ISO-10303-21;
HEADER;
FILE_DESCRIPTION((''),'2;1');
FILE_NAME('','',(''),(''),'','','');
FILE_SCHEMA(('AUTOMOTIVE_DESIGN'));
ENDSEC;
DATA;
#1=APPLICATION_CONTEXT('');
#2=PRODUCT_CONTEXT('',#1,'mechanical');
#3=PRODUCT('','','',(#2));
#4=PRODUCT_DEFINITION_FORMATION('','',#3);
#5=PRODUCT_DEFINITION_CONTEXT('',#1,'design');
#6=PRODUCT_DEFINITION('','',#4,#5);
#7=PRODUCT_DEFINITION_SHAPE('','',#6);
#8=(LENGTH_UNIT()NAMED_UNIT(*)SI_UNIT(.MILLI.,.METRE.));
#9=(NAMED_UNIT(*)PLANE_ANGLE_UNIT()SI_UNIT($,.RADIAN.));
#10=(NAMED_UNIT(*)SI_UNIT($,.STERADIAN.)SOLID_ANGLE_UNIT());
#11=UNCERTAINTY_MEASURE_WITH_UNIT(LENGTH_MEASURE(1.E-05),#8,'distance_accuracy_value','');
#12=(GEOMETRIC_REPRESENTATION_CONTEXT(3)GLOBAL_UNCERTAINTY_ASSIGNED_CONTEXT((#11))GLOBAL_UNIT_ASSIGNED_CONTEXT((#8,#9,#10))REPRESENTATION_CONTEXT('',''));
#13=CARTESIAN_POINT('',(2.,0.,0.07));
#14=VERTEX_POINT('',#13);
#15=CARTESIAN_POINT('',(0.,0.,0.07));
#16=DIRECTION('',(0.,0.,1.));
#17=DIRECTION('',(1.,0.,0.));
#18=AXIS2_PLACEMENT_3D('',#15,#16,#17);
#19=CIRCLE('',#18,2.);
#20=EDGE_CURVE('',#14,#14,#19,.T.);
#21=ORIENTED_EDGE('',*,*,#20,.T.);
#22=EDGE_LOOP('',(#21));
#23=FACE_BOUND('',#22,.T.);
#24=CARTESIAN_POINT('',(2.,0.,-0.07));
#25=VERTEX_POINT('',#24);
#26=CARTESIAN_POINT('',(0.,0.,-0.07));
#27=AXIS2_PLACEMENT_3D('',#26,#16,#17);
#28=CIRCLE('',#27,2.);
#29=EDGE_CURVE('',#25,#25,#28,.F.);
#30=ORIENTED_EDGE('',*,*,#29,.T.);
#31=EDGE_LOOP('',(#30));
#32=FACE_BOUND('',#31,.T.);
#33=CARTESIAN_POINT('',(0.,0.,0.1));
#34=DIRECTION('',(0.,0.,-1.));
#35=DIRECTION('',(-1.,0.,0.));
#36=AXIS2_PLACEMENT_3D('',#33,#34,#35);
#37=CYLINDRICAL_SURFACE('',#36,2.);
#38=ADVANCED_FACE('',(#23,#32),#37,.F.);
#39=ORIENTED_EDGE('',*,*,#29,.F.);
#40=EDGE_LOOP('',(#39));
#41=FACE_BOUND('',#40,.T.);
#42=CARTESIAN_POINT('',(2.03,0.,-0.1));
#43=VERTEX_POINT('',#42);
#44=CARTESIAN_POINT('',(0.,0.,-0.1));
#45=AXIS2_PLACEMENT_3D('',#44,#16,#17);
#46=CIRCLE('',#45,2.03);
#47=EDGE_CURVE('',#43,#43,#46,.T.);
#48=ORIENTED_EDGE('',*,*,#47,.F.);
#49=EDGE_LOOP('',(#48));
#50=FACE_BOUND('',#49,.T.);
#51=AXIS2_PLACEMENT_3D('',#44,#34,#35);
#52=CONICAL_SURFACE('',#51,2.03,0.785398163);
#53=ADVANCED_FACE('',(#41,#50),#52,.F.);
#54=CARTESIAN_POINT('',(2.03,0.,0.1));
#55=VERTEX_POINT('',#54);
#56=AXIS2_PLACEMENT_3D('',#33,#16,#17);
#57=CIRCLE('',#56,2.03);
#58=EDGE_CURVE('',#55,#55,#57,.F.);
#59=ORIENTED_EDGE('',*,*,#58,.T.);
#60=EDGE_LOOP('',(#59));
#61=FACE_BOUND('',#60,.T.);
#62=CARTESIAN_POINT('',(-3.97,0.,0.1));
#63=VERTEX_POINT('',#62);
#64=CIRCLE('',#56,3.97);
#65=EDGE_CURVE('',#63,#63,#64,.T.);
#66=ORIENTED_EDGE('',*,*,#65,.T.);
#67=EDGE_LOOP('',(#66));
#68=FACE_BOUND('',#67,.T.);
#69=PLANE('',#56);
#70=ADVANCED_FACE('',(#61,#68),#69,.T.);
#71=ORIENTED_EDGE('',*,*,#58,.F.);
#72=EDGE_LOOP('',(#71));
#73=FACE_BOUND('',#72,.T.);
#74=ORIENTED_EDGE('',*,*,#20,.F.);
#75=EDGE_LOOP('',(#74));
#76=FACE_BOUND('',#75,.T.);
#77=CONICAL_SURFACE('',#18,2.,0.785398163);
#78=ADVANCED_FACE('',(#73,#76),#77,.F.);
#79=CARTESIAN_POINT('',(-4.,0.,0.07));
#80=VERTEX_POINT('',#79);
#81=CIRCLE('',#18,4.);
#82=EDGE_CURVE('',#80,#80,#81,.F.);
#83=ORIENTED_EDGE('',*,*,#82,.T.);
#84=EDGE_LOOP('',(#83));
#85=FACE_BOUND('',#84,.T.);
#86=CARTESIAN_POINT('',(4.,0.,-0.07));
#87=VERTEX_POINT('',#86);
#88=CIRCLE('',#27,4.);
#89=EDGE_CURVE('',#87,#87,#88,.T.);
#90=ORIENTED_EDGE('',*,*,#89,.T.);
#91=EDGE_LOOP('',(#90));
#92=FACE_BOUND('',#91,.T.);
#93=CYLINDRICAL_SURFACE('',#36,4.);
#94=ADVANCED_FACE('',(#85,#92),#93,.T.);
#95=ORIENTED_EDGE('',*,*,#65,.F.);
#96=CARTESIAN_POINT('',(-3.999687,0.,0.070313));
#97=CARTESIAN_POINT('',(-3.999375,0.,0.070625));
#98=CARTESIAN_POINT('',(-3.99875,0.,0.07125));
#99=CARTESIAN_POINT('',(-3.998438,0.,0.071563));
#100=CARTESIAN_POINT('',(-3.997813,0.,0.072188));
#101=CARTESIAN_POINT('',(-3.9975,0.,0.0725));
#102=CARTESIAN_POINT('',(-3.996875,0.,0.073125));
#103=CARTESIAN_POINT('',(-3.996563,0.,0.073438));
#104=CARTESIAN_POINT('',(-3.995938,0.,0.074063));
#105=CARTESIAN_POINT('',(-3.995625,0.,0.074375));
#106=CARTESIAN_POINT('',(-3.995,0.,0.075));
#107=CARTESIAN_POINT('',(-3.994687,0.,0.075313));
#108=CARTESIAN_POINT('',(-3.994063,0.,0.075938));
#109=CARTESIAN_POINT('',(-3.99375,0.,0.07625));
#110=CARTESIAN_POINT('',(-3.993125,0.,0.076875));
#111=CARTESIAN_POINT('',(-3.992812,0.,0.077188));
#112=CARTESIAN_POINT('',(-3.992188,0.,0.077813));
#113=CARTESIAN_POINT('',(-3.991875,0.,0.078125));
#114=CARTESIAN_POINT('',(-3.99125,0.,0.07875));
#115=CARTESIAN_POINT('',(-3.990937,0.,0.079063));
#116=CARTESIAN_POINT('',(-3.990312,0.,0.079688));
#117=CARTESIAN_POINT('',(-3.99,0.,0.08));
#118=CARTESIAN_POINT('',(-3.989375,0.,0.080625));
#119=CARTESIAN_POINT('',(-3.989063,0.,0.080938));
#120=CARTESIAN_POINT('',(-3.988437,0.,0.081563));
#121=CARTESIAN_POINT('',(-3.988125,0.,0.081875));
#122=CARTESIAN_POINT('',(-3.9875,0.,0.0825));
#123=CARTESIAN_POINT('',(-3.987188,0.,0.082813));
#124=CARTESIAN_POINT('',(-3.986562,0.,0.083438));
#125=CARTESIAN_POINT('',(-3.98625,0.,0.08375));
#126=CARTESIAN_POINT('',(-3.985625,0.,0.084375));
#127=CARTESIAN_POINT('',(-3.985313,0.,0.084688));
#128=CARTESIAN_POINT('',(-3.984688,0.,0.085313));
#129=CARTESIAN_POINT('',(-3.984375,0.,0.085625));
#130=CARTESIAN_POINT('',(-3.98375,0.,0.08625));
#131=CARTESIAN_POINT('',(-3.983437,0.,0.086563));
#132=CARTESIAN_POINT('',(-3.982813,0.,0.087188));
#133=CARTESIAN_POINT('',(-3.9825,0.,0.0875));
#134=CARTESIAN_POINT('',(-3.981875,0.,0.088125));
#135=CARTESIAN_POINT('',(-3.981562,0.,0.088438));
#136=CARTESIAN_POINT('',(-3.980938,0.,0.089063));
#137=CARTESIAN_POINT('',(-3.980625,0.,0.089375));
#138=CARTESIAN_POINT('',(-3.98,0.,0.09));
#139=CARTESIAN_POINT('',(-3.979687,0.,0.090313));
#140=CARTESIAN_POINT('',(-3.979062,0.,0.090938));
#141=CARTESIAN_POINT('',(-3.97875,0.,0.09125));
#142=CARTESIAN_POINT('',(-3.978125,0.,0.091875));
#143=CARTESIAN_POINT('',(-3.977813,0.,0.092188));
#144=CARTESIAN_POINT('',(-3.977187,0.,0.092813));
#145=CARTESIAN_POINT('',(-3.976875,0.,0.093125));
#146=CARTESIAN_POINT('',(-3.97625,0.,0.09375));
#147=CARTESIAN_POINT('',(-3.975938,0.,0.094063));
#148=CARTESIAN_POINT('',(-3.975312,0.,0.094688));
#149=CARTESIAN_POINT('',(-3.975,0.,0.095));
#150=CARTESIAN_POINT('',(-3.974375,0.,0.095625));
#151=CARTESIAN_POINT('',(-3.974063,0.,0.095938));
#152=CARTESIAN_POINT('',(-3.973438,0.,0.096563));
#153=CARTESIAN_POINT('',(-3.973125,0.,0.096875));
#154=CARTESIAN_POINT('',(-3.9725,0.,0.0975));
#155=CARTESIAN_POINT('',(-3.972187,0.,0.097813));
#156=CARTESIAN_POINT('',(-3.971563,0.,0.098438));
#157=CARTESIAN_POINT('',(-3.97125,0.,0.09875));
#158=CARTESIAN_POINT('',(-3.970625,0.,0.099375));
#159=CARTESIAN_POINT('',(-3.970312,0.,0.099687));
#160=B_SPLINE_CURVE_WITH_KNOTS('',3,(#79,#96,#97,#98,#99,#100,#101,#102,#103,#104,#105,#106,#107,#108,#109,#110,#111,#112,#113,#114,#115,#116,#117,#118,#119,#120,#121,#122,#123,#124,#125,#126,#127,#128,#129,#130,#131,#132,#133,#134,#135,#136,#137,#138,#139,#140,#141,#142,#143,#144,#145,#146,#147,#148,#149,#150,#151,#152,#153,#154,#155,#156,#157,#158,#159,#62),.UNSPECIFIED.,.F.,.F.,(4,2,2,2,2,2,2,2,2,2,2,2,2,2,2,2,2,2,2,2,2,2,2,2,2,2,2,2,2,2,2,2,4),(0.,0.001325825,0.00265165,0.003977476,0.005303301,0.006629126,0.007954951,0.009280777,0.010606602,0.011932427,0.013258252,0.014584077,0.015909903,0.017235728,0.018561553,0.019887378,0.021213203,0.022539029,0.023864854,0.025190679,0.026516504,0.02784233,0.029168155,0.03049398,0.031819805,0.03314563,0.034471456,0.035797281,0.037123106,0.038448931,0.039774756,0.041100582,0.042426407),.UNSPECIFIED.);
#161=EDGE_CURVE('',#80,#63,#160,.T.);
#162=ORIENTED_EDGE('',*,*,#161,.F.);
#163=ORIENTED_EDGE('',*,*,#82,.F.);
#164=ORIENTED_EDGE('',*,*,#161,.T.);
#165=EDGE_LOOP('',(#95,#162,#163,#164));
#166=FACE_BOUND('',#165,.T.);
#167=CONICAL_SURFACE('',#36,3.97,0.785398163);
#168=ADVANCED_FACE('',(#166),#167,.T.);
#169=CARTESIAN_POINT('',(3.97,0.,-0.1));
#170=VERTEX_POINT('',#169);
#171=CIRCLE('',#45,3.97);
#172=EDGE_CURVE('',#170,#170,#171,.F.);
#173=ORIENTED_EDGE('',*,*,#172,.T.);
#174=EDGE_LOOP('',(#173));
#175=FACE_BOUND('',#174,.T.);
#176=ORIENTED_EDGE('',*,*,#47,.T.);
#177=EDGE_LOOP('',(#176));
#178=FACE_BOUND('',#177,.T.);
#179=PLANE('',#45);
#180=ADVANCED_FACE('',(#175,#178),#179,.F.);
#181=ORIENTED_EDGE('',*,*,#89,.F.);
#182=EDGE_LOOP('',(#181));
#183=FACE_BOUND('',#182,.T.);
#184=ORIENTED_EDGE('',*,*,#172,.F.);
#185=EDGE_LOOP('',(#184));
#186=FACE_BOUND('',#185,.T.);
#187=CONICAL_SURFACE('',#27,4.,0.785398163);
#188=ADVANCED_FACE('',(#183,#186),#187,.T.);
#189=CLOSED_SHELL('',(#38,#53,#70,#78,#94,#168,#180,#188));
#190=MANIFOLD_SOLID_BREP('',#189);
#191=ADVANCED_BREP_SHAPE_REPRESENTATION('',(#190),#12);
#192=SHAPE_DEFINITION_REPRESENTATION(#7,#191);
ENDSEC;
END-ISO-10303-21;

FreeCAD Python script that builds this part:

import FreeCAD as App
import Part
import Sketcher
from FreeCAD import Vector


def edges_at(feature, points):
    """Names of the edges that pass closest to the given points."""
    edges = feature.Shape.Edges
    near = lambda p: min(range(len(edges)), key=lambda i: edges[i].distToShape(Part.Vertex(*p))[0])
    return sorted({f"Edge{near(p) + 1}" for p in points})

doc = App.newDocument("Part")
body = doc.addObject("PartDesign::Body", "Body")

# Sketch on XY plane
sketch1 = doc.addObject("Sketcher::SketchObject", "Sketch")
body.addObject(sketch1)
sketch1.AttachmentSupport = (doc.XY_Plane, [""])
sketch1.MapMode = "FlatFace"
sketch1.addGeometry([
    Part.Circle(Vector(0, 0, 0), Vector(0, 0, 1), 4),
    Part.Circle(Vector(0, 0, 0), Vector(0, 0, 1), 2),
], False)
sketch1.addConstraint([
    Sketcher.Constraint("Coincident", 0, 3, -1, 1),
    Sketcher.Constraint("Coincident", 1, 3, -1, 1),
    Sketcher.Constraint("Diameter", 0, 8.0),
    Sketcher.Constraint("Diameter", 1, 4.0),
])
pad1 = doc.addObject("PartDesign::Pad", "Pad")
body.addObject(pad1)
pad1.Profile = sketch1
pad1.Length = 0.2
pad1.Midplane = True
doc.recompute()

chamfer = doc.addObject("PartDesign::Chamfer", "Chamfer")
body.addObject(chamfer)
chamfer.Base = (pad1, edges_at(pad1, [
    (-4, 0, -0.1),
    (-4, 0, 0.1),
    (-2, 0, -0.1),
    (-2, 0, 0.1),
]))
chamfer.Size = 0.03

doc.recompute()
